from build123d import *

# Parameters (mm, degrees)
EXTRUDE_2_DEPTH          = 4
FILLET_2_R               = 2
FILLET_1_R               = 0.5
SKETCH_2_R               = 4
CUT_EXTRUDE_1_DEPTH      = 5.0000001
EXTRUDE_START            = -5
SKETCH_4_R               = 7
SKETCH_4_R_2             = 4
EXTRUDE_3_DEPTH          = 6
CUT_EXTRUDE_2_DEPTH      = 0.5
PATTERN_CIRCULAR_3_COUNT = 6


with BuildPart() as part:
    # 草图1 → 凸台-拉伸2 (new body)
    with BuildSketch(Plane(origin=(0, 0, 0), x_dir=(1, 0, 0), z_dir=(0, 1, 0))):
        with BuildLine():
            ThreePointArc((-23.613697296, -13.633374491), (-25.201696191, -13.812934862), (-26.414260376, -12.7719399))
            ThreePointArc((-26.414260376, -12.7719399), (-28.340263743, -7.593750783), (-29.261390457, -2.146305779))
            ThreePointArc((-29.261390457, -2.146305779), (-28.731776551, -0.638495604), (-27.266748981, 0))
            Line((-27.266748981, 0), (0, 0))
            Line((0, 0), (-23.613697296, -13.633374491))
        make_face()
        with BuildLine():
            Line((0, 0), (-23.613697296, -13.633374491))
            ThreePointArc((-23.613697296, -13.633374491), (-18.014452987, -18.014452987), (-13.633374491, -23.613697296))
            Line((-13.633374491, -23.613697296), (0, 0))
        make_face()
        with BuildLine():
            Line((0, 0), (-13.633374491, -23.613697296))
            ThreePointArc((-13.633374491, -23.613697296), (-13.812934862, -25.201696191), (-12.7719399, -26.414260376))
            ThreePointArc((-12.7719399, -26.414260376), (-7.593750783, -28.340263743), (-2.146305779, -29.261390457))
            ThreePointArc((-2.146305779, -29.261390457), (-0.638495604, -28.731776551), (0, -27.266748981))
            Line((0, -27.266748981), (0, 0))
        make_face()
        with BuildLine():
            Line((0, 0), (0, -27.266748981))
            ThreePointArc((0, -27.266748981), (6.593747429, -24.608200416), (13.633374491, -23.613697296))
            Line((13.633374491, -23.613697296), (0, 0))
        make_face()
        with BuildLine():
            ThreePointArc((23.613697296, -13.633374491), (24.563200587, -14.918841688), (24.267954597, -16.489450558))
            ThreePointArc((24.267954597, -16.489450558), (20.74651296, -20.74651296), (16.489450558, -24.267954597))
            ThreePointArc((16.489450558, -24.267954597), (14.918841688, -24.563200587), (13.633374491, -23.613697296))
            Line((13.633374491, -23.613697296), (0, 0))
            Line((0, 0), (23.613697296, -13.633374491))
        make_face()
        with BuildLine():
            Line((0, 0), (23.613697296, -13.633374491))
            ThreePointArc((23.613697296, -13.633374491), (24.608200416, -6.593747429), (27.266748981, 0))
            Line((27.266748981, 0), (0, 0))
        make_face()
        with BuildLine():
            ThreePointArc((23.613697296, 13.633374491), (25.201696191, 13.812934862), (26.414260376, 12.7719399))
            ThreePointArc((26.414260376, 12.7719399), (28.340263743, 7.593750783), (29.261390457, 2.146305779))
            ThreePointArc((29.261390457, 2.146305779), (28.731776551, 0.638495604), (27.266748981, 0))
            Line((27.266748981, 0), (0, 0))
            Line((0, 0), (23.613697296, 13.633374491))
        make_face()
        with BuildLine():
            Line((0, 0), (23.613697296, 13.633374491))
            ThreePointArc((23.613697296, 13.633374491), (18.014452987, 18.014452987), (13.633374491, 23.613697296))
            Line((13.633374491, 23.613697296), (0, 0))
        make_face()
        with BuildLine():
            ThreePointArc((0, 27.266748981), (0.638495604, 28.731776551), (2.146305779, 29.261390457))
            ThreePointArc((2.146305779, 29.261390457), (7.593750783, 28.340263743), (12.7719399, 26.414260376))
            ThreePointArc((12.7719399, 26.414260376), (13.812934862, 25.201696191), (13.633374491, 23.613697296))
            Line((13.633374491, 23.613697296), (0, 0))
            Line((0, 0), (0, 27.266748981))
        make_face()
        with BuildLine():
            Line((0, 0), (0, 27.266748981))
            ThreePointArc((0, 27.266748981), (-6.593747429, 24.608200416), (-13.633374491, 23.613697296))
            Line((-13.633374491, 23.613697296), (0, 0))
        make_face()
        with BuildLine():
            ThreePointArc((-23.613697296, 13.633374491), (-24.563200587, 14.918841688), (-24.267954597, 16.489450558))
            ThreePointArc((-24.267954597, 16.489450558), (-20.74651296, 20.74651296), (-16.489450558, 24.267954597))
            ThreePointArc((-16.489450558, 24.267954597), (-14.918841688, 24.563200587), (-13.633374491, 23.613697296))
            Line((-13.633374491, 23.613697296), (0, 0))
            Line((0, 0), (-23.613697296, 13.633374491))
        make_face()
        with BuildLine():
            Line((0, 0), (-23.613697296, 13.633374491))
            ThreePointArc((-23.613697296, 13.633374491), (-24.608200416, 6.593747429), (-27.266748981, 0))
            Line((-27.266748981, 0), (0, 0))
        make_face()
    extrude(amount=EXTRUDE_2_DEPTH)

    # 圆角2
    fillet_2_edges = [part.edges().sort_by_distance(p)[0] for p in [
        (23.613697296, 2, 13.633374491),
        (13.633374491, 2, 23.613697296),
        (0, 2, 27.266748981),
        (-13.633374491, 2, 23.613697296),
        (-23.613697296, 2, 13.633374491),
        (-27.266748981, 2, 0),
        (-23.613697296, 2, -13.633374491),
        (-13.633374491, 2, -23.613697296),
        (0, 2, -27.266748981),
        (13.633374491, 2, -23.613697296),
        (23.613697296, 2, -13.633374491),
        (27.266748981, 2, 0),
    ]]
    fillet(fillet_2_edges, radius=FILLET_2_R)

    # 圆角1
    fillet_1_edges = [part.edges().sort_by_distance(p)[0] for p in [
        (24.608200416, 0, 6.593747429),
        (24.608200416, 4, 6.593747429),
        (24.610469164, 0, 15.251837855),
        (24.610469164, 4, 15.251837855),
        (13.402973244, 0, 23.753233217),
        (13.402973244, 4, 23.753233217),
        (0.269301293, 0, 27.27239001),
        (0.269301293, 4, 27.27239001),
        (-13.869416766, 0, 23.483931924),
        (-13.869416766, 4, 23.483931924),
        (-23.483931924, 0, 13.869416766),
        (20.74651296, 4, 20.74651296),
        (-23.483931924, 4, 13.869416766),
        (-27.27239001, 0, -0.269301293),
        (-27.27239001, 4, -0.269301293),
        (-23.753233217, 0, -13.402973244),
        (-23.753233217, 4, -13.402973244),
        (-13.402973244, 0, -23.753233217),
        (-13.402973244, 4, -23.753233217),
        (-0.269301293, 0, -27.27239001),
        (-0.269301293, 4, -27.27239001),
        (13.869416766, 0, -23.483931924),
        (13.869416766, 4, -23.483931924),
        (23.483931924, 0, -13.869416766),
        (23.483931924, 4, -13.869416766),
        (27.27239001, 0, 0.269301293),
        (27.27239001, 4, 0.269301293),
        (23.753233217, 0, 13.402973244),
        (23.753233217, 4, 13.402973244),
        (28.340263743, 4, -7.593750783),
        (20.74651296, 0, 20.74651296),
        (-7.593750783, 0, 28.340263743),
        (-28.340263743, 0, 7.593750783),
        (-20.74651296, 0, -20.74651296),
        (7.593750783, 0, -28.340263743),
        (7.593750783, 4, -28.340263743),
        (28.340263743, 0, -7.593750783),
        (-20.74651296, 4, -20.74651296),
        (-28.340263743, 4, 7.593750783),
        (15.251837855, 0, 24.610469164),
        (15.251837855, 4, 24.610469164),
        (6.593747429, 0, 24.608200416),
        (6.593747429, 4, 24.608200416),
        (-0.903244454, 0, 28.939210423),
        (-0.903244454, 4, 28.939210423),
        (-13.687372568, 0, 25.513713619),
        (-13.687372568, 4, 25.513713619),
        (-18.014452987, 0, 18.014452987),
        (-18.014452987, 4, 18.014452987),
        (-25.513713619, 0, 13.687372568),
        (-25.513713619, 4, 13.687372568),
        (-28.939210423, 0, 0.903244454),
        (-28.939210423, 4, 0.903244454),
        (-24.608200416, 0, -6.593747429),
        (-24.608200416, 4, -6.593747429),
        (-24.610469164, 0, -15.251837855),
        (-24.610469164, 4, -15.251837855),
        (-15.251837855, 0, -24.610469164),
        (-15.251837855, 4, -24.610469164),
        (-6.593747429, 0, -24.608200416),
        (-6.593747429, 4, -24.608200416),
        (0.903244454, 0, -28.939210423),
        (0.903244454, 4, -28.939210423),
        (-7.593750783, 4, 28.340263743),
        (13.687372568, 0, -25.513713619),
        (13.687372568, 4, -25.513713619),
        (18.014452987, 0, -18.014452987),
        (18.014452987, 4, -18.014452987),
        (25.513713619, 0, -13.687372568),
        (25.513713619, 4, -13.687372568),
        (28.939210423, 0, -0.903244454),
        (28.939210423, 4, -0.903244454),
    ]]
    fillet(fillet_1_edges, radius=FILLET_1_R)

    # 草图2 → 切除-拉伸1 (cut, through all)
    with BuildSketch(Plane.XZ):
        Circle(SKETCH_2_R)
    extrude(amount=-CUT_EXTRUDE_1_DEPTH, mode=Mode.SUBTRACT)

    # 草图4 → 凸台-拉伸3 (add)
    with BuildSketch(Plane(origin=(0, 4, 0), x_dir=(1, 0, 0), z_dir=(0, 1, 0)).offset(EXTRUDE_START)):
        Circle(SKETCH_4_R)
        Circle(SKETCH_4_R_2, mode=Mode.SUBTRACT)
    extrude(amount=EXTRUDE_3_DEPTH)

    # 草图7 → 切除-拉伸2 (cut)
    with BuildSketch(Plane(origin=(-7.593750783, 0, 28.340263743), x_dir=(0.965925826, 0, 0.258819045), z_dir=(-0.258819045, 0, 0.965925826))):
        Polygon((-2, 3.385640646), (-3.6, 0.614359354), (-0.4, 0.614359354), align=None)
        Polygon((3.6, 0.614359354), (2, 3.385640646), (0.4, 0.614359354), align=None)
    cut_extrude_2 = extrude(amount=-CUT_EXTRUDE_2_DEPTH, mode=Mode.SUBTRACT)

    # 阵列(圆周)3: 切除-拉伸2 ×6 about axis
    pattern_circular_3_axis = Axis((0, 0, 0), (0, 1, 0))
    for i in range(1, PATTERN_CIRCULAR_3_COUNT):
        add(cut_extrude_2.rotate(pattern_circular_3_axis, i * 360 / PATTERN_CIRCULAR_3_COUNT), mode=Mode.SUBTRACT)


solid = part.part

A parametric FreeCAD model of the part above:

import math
import FreeCAD as App
import Part
import Sketcher

V = App.Vector
Q = App.Units.Quantity


def edges_at(feature, points):
    """Names of the edges that pass closest to the given points."""
    edges = feature.Shape.Edges
    near = lambda p: min(range(len(edges)), key=lambda i: edges[i].distToShape(Part.Vertex(*p))[0])
    return sorted({f"Edge{near(p) + 1}" for p in points})

doc = App.newDocument("Part")
params = doc.addObject("Spreadsheet::Sheet", "Params")
for row, (alias, value) in enumerate([
    ("sketch1_radius", "2 mm"),
    ("sketch1_radius2", "29.34 mm"),
    ("sketch1_width", "1 mm"),
    ("pad1_length", "4 mm"),
    ("fillet_radius", "2 mm"),
    ("fillet2_radius", "0.5 mm"),
    ("sketch2_diameter", "8 mm"),
    ("sketch3_diameter", "14 mm"),
    ("sketch3_diameter2", "8 mm"),
    ("pad2_length", "6 mm"),
    ("sketch4_width", "3.2 mm"),
    ("pocket2_length", "0.5 mm"),
], start=1):
    params.set(f"A{row}", alias)
    params.set(f"B{row}", "=" + value)
    params.setAlias(f"B{row}", alias)

body = doc.addObject("PartDesign::Body", "Body")

# Sketch on XZ plane
sketch1 = body.newObject("Sketcher::SketchObject", "Sketch")
sketch1.AttachmentSupport = (doc.getObject("XZ_Plane"), [""])
sketch1.MapMode = "FlatFace"
sketch1.addGeometry(Part.ArcOfCircle(Part.Circle(V(-24.613697, 11.901324, 0), V(0, 0, 1), 2), math.radians(60), math.radians(154.195099)), False)
sketch1.addGeometry(Part.ArcOfCircle(Part.Circle(V(-38.760966, 38.760966, 0), V(0, 0, 1), 29.34), math.radians(-58.917831), math.radians(-31.082169)), False)
sketch1.addGeometry(Part.ArcOfCircle(Part.Circle(V(-11.901324, 24.613697, 0), V(0, 0, 1), 2), math.radians(115.804901), math.radians(210)), False)
sketch1.addGeometry(Part.ArcOfCircle(Part.Circle(V(0, 0, 0), V(0, 0, 1), 29.34), math.radians(94.195099), math.radians(115.804901)), False)
sketch1.addGeometry(Part.ArcOfCircle(Part.Circle(V(-2, 27.266749, 0), V(0, 0, 1), 2), math.radians(0), math.radians(94.195099)), False)
sketch1.addGeometry(Part.ArcOfCircle(Part.Circle(V(14.187498, 52.948464, 0), V(0, 0, 1), 29.34), math.radians(-118.917831), math.radians(-91.082169)), False)
sketch1.addGeometry(Part.ArcOfCircle(Part.Circle(V(15.365425, 22.613697, 0), V(0, 0, 1), 2), math.radians(55.804901), math.radians(150)), False)
sketch1.addGeometry(Part.ArcOfCircle(Part.Circle(V(0, 0, 0), V(0, 0, 1), 29.34), math.radians(34.195099), math.radians(55.804901)), False)
sketch1.addGeometry(Part.ArcOfCircle(Part.Circle(V(22.613697, 15.365425, 0), V(0, 0, 1), 2), math.radians(-60), math.radians(34.195099)), False)
sketch1.addGeometry(Part.ArcOfCircle(Part.Circle(V(52.948464, 14.187498, 0), V(0, 0, 1), 29.34), math.radians(-178.917831), math.radians(-151.082169)), False)
sketch1.addGeometry(Part.ArcOfCircle(Part.Circle(V(27.266749, -2, 0), V(0, 0, 1), 2), math.radians(-4.195099), math.radians(90)), False)
sketch1.addGeometry(Part.ArcOfCircle(Part.Circle(V(0, 0, 0), V(0, 0, 1), 29.34), math.radians(-25.804901), math.radians(-4.195099)), False)
sketch1.addGeometry(Part.ArcOfCircle(Part.Circle(V(24.613697, -11.901324, 0), V(0, 0, 1), 2), math.radians(-120), math.radians(-25.804901)), False)
sketch1.addGeometry(Part.ArcOfCircle(Part.Circle(V(38.760966, -38.760966, 0), V(0, 0, 1), 29.34), math.radians(121.082169), math.radians(148.917831)), False)
sketch1.addGeometry(Part.ArcOfCircle(Part.Circle(V(11.901324, -24.613697, 0), V(0, 0, 1), 2), math.radians(-64.195099), math.radians(30)), False)
sketch1.addGeometry(Part.ArcOfCircle(Part.Circle(V(0, 0, 0), V(0, 0, 1), 29.34), math.radians(-85.804901), math.radians(-64.195099)), False)
sketch1.addGeometry(Part.ArcOfCircle(Part.Circle(V(2, -27.266749, 0), V(0, 0, 1), 2), math.radians(180), math.radians(274.195099)), False)
sketch1.addGeometry(Part.ArcOfCircle(Part.Circle(V(-14.187498, -52.948464, 0), V(0, 0, 1), 29.34), math.radians(61.082169), math.radians(88.917831)), False)
sketch1.addGeometry(Part.ArcOfCircle(Part.Circle(V(-15.365425, -22.613697, 0), V(0, 0, 1), 2), math.radians(-124.195099), math.radians(-30)), False)
sketch1.addGeometry(Part.ArcOfCircle(Part.Circle(V(0, 0, 0), V(0, 0, 1), 29.34), math.radians(-145.804901), math.radians(-124.195099)), False)
sketch1.addGeometry(Part.ArcOfCircle(Part.Circle(V(-22.613697, -15.365425, 0), V(0, 0, 1), 2), math.radians(120), math.radians(214.195099)), False)
sketch1.addGeometry(Part.ArcOfCircle(Part.Circle(V(-52.948464, -14.187498, 0), V(0, 0, 1), 29.34), math.radians(1.082169), math.radians(28.917831)), False)
sketch1.addGeometry(Part.ArcOfCircle(Part.Circle(V(-27.266749, 2, 0), V(0, 0, 1), 2), math.radians(175.804901), math.radians(270)), False)
sketch1.addGeometry(Part.ArcOfCircle(Part.Circle(V(0, 0, 0), V(0, 0, 1), 29.34), math.radians(154.195099), math.radians(175.804901)), False)
sketch1.addConstraint(Sketcher.Constraint("Coincident", 0, 1, 1, 1))
sketch1.addConstraint(Sketcher.Constraint("Coincident", 1, 2, 2, 2))
sketch1.addConstraint(Sketcher.Constraint("Tangent", 2, 1, 3, 2))
sketch1.addConstraint(Sketcher.Constraint("Tangent", 3, 1, 4, 2))
sketch1.addConstraint(Sketcher.Constraint("Coincident", 4, 1, 5, 1))
sketch1.addConstraint(Sketcher.Constraint("Coincident", 5, 2, 6, 2))
sketch1.addConstraint(Sketcher.Constraint("Tangent", 6, 1, 7, 2))
sketch1.addConstraint(Sketcher.Constraint("Tangent", 7, 1, 8, 2))
sketch1.addConstraint(Sketcher.Constraint("Coincident", 8, 1, 9, 1))
sketch1.addConstraint(Sketcher.Constraint("Coincident", 9, 2, 10, 2))
sketch1.addConstraint(Sketcher.Constraint("Tangent", 10, 1, 11, 2))
sketch1.addConstraint(Sketcher.Constraint("Tangent", 11, 1, 12, 2))
sketch1.addConstraint(Sketcher.Constraint("Coincident", 12, 1, 13, 1))
sketch1.addConstraint(Sketcher.Constraint("Coincident", 13, 2, 14, 2))
sketch1.addConstraint(Sketcher.Constraint("Tangent", 14, 1, 15, 2))
sketch1.addConstraint(Sketcher.Constraint("Tangent", 15, 1, 16, 2))
sketch1.addConstraint(Sketcher.Constraint("Coincident", 16, 1, 17, 1))
sketch1.addConstraint(Sketcher.Constraint("Coincident", 17, 2, 18, 2))
sketch1.addConstraint(Sketcher.Constraint("Tangent", 18, 1, 19, 2))
sketch1.addConstraint(Sketcher.Constraint("Tangent", 19, 1, 20, 2))
sketch1.addConstraint(Sketcher.Constraint("Coincident", 20, 1, 21, 1))
sketch1.addConstraint(Sketcher.Constraint("Coincident", 21, 2, 22, 2))
sketch1.addConstraint(Sketcher.Constraint("Tangent", 22, 1, 23, 2))
sketch1.addConstraint(Sketcher.Constraint("Tangent", 23, 1, 0, 2))
sketch1.addConstraint(Sketcher.Constraint("Coincident", 3, 3, -1, 1))
sketch1.addConstraint(Sketcher.Constraint("Coincident", 7, 3, -1, 1))
sketch1.addConstraint(Sketcher.Constraint("Coincident", 11, 3, -1, 1))
sketch1.addConstraint(Sketcher.Constraint("Coincident", 15, 3, -1, 1))
sketch1.addConstraint(Sketcher.Constraint("Coincident", 19, 3, -1, 1))
sketch1.addConstraint(Sketcher.Constraint("Coincident", 23, 3, -1, 1))
sketch1.addConstraint(Sketcher.Constraint("Equal", 0, 2))
sketch1.addConstraint(Sketcher.Constraint("Equal", 1, 3))
sketch1.addConstraint(Sketcher.Constraint("Equal", 2, 4))
sketch1.addConstraint(Sketcher.Constraint("Equal", 3, 5))
sketch1.addConstraint(Sketcher.Constraint("Equal", 4, 6))
sketch1.addConstraint(Sketcher.Constraint("Equal", 5, 7))
sketch1.addConstraint(Sketcher.Constraint("Equal", 6, 8))
sketch1.addConstraint(Sketcher.Constraint("Equal", 7, 9))
sketch1.addConstraint(Sketcher.Constraint("Equal", 8, 10))
sketch1.addConstraint(Sketcher.Constraint("Equal", 9, 11))
sketch1.addConstraint(Sketcher.Constraint("Equal", 10, 12))
sketch1.addConstraint(Sketcher.Constraint("Equal", 11, 13))
sketch1.addConstraint(Sketcher.Constraint("Equal", 12, 14))
sketch1.addConstraint(Sketcher.Constraint("Equal", 13, 15))
sketch1.addConstraint(Sketcher.Constraint("Equal", 14, 16))
sketch1.addConstraint(Sketcher.Constraint("Equal", 15, 17))
sketch1.addConstraint(Sketcher.Constraint("Equal", 16, 18))
sketch1.addConstraint(Sketcher.Constraint("Equal", 17, 19))
sketch1.addConstraint(Sketcher.Constraint("Equal", 18, 20))
sketch1.addConstraint(Sketcher.Constraint("Equal", 19, 21))
sketch1.addConstraint(Sketcher.Constraint("Equal", 20, 22))
sketch1.addConstraint(Sketcher.Constraint("Equal", 21, 23))
sketch1.addConstraint(Sketcher.Constraint("Symmetric", 1, 3, 13, 3, -1, 1))
sketch1.addConstraint(Sketcher.Constraint("Symmetric", 5, 3, 17, 3, -1, 1))
sketch1.addConstraint(Sketcher.Constraint("Symmetric", 9, 3, 21, 3, -1, 1))
sketch1.addConstraint(Sketcher.Constraint("Symmetric", 1, 2, 5, 2, -2))
sketch1.addConstraint(Sketcher.Constraint("Symmetric", 0, 1, 8, 1, -2))
sketch1.addConstraint(Sketcher.Constraint("Symmetric", 13, 2, 17, 2, -2))
sketch1.addConstraint(Sketcher.Constraint("Symmetric", 12, 1, 20, 1, -2))
sketch1.addConstraint(Sketcher.Constraint("Symmetric", 9, 2, 21, 2, -2))
sketch1.addConstraint(Sketcher.Constraint("Symmetric", 4, 1, 16, 1, -1))
sketch1.addConstraint(Sketcher.Constraint("Vertical", 10, 3, 9, 2))
sketch1.addConstraint(Sketcher.Constraint("Radius", 0, Q("2 mm")))
sketch1.addConstraint(Sketcher.Constraint("Radius", 1, Q("29.34 mm")))
sketch1.addConstraint(Sketcher.Constraint("DistanceY", 6, 3, 2, 3, Q("2 mm")))
sketch1.addConstraint(Sketcher.Constraint("DistanceX", 8, 3, 12, 3, Q("2 mm")))
sketch1.addConstraint(Sketcher.Constraint("DistanceX", 0, 3, 0, 1, Q("1 mm")))
sketch1.addConstraint(Sketcher.Constraint("DistanceY", 1, 2, 2, 3, Q("1 mm")))
sketch1.addConstraint(Sketcher.Constraint("DistanceX", -1, 1, 5, 3, Q("14.187498 mm")))
sketch1.setExpression("Constraints[62]", "Params.sketch1_radius")
sketch1.setExpression("Constraints[63]", "Params.sketch1_radius2")
sketch1.setExpression("Constraints[66]", "Params.sketch1_width")
pad1 = body.newObject("PartDesign::Pad", "Pad")
pad1.Profile = sketch1
pad1.setExpression("Length", "Params.pad1_length")
pad1.Reversed = True
doc.recompute()

fillet = body.newObject("PartDesign::Fillet", "Fillet")
fillet.Base = (pad1, edges_at(pad1, [
    (23.614, 2, 13.633),
    (13.633, 2, 23.614),
    (0, 2, 27.267),
    (-13.633, 2, 23.614),
    (-23.614, 2, 13.633),
    (-27.267, 2, 0),
    (-23.614, 2, -13.633),
    (-13.633, 2, -23.614),
    (0, 2, -27.267),
    (13.633, 2, -23.614),
    (23.614, 2, -13.633),
    (27.267, 2, 0),
]))
fillet.setExpression("Radius", "Params.fillet_radius")
doc.recompute()

fillet2 = body.newObject("PartDesign::Fillet", "Fillet001")
fillet2.Base = (fillet, edges_at(fillet, [
    (24.608, 0, 6.594),
    (24.608, 4, 6.594),
    (24.61, 0, 15.252),
    (24.61, 4, 15.252),
    (13.403, 0, 23.753),
    (13.403, 4, 23.753),
    (0.269, 0, 27.272),
    (0.269, 4, 27.272),
    (-13.869, 0, 23.484),
    (-13.869, 4, 23.484),
    (-23.484, 0, 13.869),
    (20.747, 4, 20.747),
    (-23.484, 4, 13.869),
    (-27.272, 0, -0.269),
    (-27.272, 4, -0.269),
    (-23.753, 0, -13.403),
    (-23.753, 4, -13.403),
    (-13.403, 0, -23.753),
    (-13.403, 4, -23.753),
    (-0.269, 0, -27.272),
    (-0.269, 4, -27.272),
    (13.869, 0, -23.484),
    (13.869, 4, -23.484),
    (23.484, 0, -13.869),
    (23.484, 4, -13.869),
    (27.272, 0, 0.269),
    (27.272, 4, 0.269),
    (23.753, 0, 13.403),
    (23.753, 4, 13.403),
    (28.34, 4, -7.594),
    (20.747, 0, 20.747),
    (-7.594, 0, 28.34),
    (-28.34, 0, 7.594),
    (-20.747, 0, -20.747),
    (7.594, 0, -28.34),
    (7.594, 4, -28.34),
    (28.34, 0, -7.594),
    (-20.747, 4, -20.747),
    (-28.34, 4, 7.594),
    (15.252, 0, 24.61),
    (15.252, 4, 24.61),
    (6.594, 0, 24.608),
    (6.594, 4, 24.608),
    (-0.903, 0, 28.939),
    (-0.903, 4, 28.939),
    (-13.687, 0, 25.514),
    (-13.687, 4, 25.514),
    (-18.014, 0, 18.014),
    (-18.014, 4, 18.014),
    (-25.514, 0, 13.687),
    (-25.514, 4, 13.687),
    (-28.939, 0, 0.903),
    (-28.939, 4, 0.903),
    (-24.608, 0, -6.594),
    (-24.608, 4, -6.594),
    (-24.61, 0, -15.252),
    (-24.61, 4, -15.252),
    (-15.252, 0, -24.61),
    (-15.252, 4, -24.61),
    (-6.594, 0, -24.608),
    (-6.594, 4, -24.608),
    (0.903, 0, -28.939),
    (0.903, 4, -28.939),
    (-7.594, 4, 28.34),
    (13.687, 0, -25.514),
    (13.687, 4, -25.514),
    (18.014, 0, -18.014),
    (18.014, 4, -18.014),
    (25.514, 0, -13.687),
    (25.514, 4, -13.687),
    (28.939, 0, -0.903),
    (28.939, 4, -0.903),
]))
fillet2.setExpression("Radius", "Params.fillet2_radius")

# Sketch on XZ plane
sketch2 = body.newObject("Sketcher::SketchObject", "Sketch001")
sketch2.AttachmentSupport = (doc.getObject("XZ_Plane"), [""])
sketch2.MapMode = "FlatFace"
sketch2.addGeometry(Part.Circle(V(0, 0, 0), V(0, 0, 1), 4), False)
sketch2.addConstraint(Sketcher.Constraint("Coincident", 0, 3, -1, 1))
sketch2.addConstraint(Sketcher.Constraint("Diameter", 0, Q("8 mm")))
sketch2.setExpression("Constraints[1]", "Params.sketch2_diameter")
pocket1 = body.newObject("PartDesign::Pocket", "Pocket")
pocket1.Profile = sketch2
pocket1.Type = "ThroughAll"

# Sketch on XZ plane
sketch3 = body.newObject("Sketcher::SketchObject", "Sketch002")
sketch3.AttachmentSupport = (doc.getObject("XZ_Plane"), [""])
sketch3.MapMode = "FlatFace"
sketch3.AttachmentOffset = App.Placement(V(0, 0, 1), App.Rotation())
sketch3.addGeometry(Part.Circle(V(0, 0, 0), V(0, 0, 1), 7), False)
sketch3.addGeometry(Part.Circle(V(0, 0, 0), V(0, 0, 1), 4), False)
sketch3.addConstraint(Sketcher.Constraint("Coincident", 0, 3, -1, 1))
sketch3.addConstraint(Sketcher.Constraint("Coincident", 1, 3, -1, 1))
sketch3.addConstraint(Sketcher.Constraint("Diameter", 0, Q("14 mm")))
sketch3.addConstraint(Sketcher.Constraint("Diameter", 1, Q("8 mm")))
sketch3.setExpression("Constraints[2]", "Params.sketch3_diameter")
sketch3.setExpression("Constraints[3]", "Params.sketch3_diameter2")
pad2 = body.newObject("PartDesign::Pad", "Pad001")
pad2.Profile = sketch3
pad2.setExpression("Length", "Params.pad2_length")
pad2.Reversed = True

# Sketch on an angled plane
sketch4 = body.newObject("Sketcher::SketchObject", "Sketch003")
sketch4.Placement = App.Placement(V(-7.593751, 0, 28.340264), App.Rotation(V(0.965925826, 0, 0.258819045), V(0, 0.999999999, 0), V(-0.258819045, 0, 0.965925826), "ZXY"))
sketch4.addGeometry(Part.LineSegment(V(-2, 3.385641, 0), V(-3.6, 0.614359, 0)), False)
sketch4.addGeometry(Part.LineSegment(V(-3.6, 0.614359, 0), V(-0.4, 0.614359, 0)), False)
sketch4.addGeometry(Part.LineSegment(V(-0.4, 0.614359, 0), V(-2, 3.385641, 0)), False)
sketch4.addGeometry(Part.LineSegment(V(3.6, 0.614359, 0), V(2, 3.385641, 0)), False)
sketch4.addGeometry(Part.LineSegment(V(2, 3.385641, 0), V(0.4, 0.614359, 0)), False)
sketch4.addGeometry(Part.LineSegment(V(0.4, 0.614359, 0), V(3.6, 0.614359, 0)), False)
sketch4.addConstraint(Sketcher.Constraint("Coincident", 0, 2, 1, 1))
sketch4.addConstraint(Sketcher.Constraint("Coincident", 1, 2, 2, 1))
sketch4.addConstraint(Sketcher.Constraint("Coincident", 2, 2, 0, 1))
sketch4.addConstraint(Sketcher.Constraint("Coincident", 3, 2, 4, 1))
sketch4.addConstraint(Sketcher.Constraint("Coincident", 4, 2, 5, 1))
sketch4.addConstraint(Sketcher.Constraint("Coincident", 5, 2, 3, 1))
sketch4.addConstraint(Sketcher.Constraint("Horizontal", 1))
sketch4.addConstraint(Sketcher.Constraint("Horizontal", 5))
sketch4.addConstraint(Sketcher.Constraint("Symmetric", 2, 2, 3, 2, -2))
sketch4.addConstraint(Sketcher.Constraint("Symmetric", 1, 2, 4, 2, -2))
sketch4.addConstraint(Sketcher.Constraint("Parallel", 2, 3))
sketch4.addConstraint(Sketcher.Constraint("Parallel", 0, 4))
sketch4.addConstraint(Sketcher.Constraint("Angle", 0, Q("-120 deg")))
sketch4.addConstraint(Sketcher.Constraint("DistanceX", 1, 1, 1, 2, Q("3.2 mm")))
sketch4.addConstraint(Sketcher.Constraint("DistanceX", 2, 2, -1, 1, Q("2 mm")))
sketch4.addConstraint(Sketcher.Constraint("DistanceY", -1, 1, 0, 2, Q("0.614359 mm")))
sketch4.setExpression("Constraints[13]", "Params.sketch4_width")
pocket2 = body.newObject("PartDesign::Pocket", "Pocket001")
pocket2.Profile = sketch4
pocket2.setExpression("Length", "Params.pocket2_length")
doc.recompute()

polarpattern = body.newObject("PartDesign::PolarPattern", "PolarPattern")
polarpattern.Originals = [pocket2]
polarpattern.Axis = (doc.getObject("Y_Axis"), [""])
polarpattern.Angle = 360
polarpattern.Occurrences = 6
body.Tip = polarpattern

doc.recompute()
